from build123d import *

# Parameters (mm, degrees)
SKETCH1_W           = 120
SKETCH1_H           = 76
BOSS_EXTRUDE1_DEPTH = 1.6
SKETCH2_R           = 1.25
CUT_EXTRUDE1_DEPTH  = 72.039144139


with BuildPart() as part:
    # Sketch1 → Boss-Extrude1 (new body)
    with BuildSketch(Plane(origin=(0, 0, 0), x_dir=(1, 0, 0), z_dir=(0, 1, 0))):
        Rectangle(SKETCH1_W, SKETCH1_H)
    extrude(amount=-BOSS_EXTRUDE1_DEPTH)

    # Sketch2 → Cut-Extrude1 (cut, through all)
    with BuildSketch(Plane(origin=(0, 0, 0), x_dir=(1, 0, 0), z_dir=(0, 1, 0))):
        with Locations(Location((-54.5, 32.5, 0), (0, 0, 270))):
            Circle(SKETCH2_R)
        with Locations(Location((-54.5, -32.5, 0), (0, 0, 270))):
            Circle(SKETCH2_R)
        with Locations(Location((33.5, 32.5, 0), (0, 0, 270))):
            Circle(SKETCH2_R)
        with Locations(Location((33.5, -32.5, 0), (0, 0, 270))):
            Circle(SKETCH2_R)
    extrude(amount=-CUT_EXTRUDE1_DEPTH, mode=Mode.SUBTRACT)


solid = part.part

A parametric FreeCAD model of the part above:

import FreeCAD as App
import Part
import Sketcher
from FreeCAD import Vector
Q = App.Units.Quantity

doc = App.newDocument("Part")
body = doc.addObject("PartDesign::Body", "Body")

# Sketch on XZ plane
sketch1 = body.newObject("Sketcher::SketchObject", "Sketch")
sketch1.AttachmentSupport = (doc.getObject("XZ_Plane"), [""])
sketch1.MapMode = "FlatFace"
sketch1.addGeometry([
    Part.LineSegment(Vector(-60, -38, 0), Vector(-60, 38, 0)),
    Part.LineSegment(Vector(-60, 38, 0), Vector(60, 38, 0)),
    Part.LineSegment(Vector(60, 38, 0), Vector(60, -38, 0)),
    Part.LineSegment(Vector(60, -38, 0), Vector(-60, -38, 0)),
], False)
sketch1.addConstraint([
    Sketcher.Constraint("Coincident", 0, 2, 1, 1),
    Sketcher.Constraint("Coincident", 1, 2, 2, 1),
    Sketcher.Constraint("Coincident", 2, 2, 3, 1),
    Sketcher.Constraint("Coincident", 3, 2, 0, 1),
    Sketcher.Constraint("Vertical", 0),
    Sketcher.Constraint("Horizontal", 1),
    Sketcher.Constraint("Vertical", 2),
    Sketcher.Constraint("Horizontal", 3),
    Sketcher.Constraint("Symmetric", 0, 2, 2, 2, -1, 1),
    Sketcher.Constraint("DistanceX", 1, 1, 1, 2, Q("120 mm")),
    Sketcher.Constraint("DistanceY", 0, 1, 0, 2, Q("76 mm")),
])
pad1 = body.newObject("PartDesign::Pad", "Pad")
pad1.Profile = sketch1
pad1.Length = 1.6

# Sketch on XZ plane
sketch2 = body.newObject("Sketcher::SketchObject", "Sketch001")
sketch2.AttachmentSupport = (doc.getObject("XZ_Plane"), [""])
sketch2.MapMode = "FlatFace"
sketch2.addGeometry([
    Part.Circle(Vector(-54.5, -32.5, 0), Vector(0, 0, 1), 1.2),
    Part.Circle(Vector(-54.5, 32.5, 0), Vector(0, 0, 1), 1.2),
    Part.Circle(Vector(33.5, -32.5, 0), Vector(0, 0, 1), 1.2),
    Part.Circle(Vector(33.5, 32.5, 0), Vector(0, 0, 1), 1.2),
], False)
sketch2.addConstraint([
    Sketcher.Constraint("Equal", 0, 1),
    Sketcher.Constraint("Equal", 1, 2),
    Sketcher.Constraint("Equal", 2, 3),
    Sketcher.Constraint("Symmetric", 0, 3, 1, 3, -1),
    Sketcher.Constraint("Symmetric", 2, 3, 3, 3, -1),
    Sketcher.Constraint("Horizontal", 0, 3, 2, 3),
    Sketcher.Constraint("Diameter", 0, Q("2.5 mm")),
    Sketcher.Constraint("DistanceY", 0, 3, 1, 3, Q("65 mm")),
    Sketcher.Constraint("DistanceX", 0, 3, 2, 3, Q("88 mm")),
    Sketcher.Constraint("DistanceX", 0, 3, -1, 1, Q("54.5 mm")),
])
pocket1 = body.newObject("PartDesign::Pocket", "Pocket")
pocket1.Profile = sketch2
pocket1.Type = "ThroughAll"
pocket1.Reversed = True

doc.recompute()
